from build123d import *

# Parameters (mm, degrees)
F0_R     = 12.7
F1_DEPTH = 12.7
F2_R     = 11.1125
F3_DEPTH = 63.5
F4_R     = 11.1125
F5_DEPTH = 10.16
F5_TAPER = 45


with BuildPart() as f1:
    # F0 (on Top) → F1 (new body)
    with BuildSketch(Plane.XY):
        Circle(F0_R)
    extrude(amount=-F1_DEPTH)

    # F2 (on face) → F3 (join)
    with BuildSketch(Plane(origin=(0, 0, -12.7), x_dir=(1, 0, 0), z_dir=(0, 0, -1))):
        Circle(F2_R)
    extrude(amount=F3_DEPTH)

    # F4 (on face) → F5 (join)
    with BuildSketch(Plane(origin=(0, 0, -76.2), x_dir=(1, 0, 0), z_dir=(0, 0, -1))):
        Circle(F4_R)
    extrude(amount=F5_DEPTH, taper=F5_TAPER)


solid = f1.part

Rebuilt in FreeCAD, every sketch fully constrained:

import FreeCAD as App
import Part
import Sketcher
from FreeCAD import Vector
Q = App.Units.Quantity

doc = App.newDocument("Part")
params = doc.addObject("Spreadsheet::Sheet", "Params")
for row, (alias, value) in enumerate([
    ("sketch1_diameter", "1 in"),
    ("pad1_length", "0.5 in"),
    ("sketch2_diameter", "0.875 in"),
    ("pad2_length", "2.5 in"),
    ("sketch3_diameter", "0.875 in"),
    ("pad3_length", "0.4 in"),
    ("pad3_taper", "-45 deg"),
], start=1):
    params.set(f"A{row}", alias)
    params.set(f"B{row}", "=" + value)
    params.setAlias(f"B{row}", alias)

body = doc.addObject("PartDesign::Body", "Body")

# Sketch on XY plane
sketch1 = doc.addObject("Sketcher::SketchObject", "Sketch")
body.addObject(sketch1)
sketch1.AttachmentSupport = (doc.XY_Plane, [""])
sketch1.MapMode = "FlatFace"
sketch1.addGeometry(Part.Circle(Vector(0, 0, 0), Vector(0, 0, 1), 13), False)
sketch1.addConstraint([
    Sketcher.Constraint("Coincident", 0, 3, -1, 1),
    Sketcher.Constraint("Diameter", 0, Q("1 in")),
])
sketch1.setExpression("Constraints[1]", "Params.sketch1_diameter")
pad1 = doc.addObject("PartDesign::Pad", "Pad")
body.addObject(pad1)
pad1.Profile = sketch1
pad1.setExpression("Length", "Params.pad1_length")
pad1.Reversed = True

# Sketch on XY plane
sketch2 = doc.addObject("Sketcher::SketchObject", "Sketch001")
body.addObject(sketch2)
sketch2.AttachmentSupport = (doc.XY_Plane, [""])
sketch2.MapMode = "FlatFace"
sketch2.AttachmentOffset = App.Placement(Vector(0, 0, -0.5 * 25.4), App.Rotation())
sketch2.addGeometry(Part.Circle(Vector(0, 0, 0), Vector(0, 0, 1), 11), False)
sketch2.addConstraint([
    Sketcher.Constraint("Coincident", 0, 3, -1, 1),
    Sketcher.Constraint("Diameter", 0, Q("0.875 in")),
])
sketch2.setExpression("Constraints[1]", "Params.sketch2_diameter")
pad2 = doc.addObject("PartDesign::Pad", "Pad001")
body.addObject(pad2)
pad2.Profile = sketch2
pad2.setExpression("Length", "Params.pad2_length")
pad2.Reversed = True

# Sketch on XY plane
sketch3 = doc.addObject("Sketcher::SketchObject", "Sketch002")
body.addObject(sketch3)
sketch3.AttachmentSupport = (doc.XY_Plane, [""])
sketch3.MapMode = "FlatFace"
sketch3.AttachmentOffset = App.Placement(Vector(0, 0, -3 * 25.4), App.Rotation())
sketch3.addGeometry(Part.Circle(Vector(0, 0, 0), Vector(0, 0, 1), 11), False)
sketch3.addConstraint([
    Sketcher.Constraint("Coincident", 0, 3, -1, 1),
    Sketcher.Constraint("Diameter", 0, Q("0.875 in")),
])
sketch3.setExpression("Constraints[1]", "Params.sketch3_diameter")
pad3 = doc.addObject("PartDesign::Pad", "Pad002")
body.addObject(pad3)
pad3.Profile = sketch3
pad3.setExpression("Length", "Params.pad3_length")
pad3.Reversed = True
pad3.setExpression("TaperAngle", "Params.pad3_taper")

doc.recompute()
